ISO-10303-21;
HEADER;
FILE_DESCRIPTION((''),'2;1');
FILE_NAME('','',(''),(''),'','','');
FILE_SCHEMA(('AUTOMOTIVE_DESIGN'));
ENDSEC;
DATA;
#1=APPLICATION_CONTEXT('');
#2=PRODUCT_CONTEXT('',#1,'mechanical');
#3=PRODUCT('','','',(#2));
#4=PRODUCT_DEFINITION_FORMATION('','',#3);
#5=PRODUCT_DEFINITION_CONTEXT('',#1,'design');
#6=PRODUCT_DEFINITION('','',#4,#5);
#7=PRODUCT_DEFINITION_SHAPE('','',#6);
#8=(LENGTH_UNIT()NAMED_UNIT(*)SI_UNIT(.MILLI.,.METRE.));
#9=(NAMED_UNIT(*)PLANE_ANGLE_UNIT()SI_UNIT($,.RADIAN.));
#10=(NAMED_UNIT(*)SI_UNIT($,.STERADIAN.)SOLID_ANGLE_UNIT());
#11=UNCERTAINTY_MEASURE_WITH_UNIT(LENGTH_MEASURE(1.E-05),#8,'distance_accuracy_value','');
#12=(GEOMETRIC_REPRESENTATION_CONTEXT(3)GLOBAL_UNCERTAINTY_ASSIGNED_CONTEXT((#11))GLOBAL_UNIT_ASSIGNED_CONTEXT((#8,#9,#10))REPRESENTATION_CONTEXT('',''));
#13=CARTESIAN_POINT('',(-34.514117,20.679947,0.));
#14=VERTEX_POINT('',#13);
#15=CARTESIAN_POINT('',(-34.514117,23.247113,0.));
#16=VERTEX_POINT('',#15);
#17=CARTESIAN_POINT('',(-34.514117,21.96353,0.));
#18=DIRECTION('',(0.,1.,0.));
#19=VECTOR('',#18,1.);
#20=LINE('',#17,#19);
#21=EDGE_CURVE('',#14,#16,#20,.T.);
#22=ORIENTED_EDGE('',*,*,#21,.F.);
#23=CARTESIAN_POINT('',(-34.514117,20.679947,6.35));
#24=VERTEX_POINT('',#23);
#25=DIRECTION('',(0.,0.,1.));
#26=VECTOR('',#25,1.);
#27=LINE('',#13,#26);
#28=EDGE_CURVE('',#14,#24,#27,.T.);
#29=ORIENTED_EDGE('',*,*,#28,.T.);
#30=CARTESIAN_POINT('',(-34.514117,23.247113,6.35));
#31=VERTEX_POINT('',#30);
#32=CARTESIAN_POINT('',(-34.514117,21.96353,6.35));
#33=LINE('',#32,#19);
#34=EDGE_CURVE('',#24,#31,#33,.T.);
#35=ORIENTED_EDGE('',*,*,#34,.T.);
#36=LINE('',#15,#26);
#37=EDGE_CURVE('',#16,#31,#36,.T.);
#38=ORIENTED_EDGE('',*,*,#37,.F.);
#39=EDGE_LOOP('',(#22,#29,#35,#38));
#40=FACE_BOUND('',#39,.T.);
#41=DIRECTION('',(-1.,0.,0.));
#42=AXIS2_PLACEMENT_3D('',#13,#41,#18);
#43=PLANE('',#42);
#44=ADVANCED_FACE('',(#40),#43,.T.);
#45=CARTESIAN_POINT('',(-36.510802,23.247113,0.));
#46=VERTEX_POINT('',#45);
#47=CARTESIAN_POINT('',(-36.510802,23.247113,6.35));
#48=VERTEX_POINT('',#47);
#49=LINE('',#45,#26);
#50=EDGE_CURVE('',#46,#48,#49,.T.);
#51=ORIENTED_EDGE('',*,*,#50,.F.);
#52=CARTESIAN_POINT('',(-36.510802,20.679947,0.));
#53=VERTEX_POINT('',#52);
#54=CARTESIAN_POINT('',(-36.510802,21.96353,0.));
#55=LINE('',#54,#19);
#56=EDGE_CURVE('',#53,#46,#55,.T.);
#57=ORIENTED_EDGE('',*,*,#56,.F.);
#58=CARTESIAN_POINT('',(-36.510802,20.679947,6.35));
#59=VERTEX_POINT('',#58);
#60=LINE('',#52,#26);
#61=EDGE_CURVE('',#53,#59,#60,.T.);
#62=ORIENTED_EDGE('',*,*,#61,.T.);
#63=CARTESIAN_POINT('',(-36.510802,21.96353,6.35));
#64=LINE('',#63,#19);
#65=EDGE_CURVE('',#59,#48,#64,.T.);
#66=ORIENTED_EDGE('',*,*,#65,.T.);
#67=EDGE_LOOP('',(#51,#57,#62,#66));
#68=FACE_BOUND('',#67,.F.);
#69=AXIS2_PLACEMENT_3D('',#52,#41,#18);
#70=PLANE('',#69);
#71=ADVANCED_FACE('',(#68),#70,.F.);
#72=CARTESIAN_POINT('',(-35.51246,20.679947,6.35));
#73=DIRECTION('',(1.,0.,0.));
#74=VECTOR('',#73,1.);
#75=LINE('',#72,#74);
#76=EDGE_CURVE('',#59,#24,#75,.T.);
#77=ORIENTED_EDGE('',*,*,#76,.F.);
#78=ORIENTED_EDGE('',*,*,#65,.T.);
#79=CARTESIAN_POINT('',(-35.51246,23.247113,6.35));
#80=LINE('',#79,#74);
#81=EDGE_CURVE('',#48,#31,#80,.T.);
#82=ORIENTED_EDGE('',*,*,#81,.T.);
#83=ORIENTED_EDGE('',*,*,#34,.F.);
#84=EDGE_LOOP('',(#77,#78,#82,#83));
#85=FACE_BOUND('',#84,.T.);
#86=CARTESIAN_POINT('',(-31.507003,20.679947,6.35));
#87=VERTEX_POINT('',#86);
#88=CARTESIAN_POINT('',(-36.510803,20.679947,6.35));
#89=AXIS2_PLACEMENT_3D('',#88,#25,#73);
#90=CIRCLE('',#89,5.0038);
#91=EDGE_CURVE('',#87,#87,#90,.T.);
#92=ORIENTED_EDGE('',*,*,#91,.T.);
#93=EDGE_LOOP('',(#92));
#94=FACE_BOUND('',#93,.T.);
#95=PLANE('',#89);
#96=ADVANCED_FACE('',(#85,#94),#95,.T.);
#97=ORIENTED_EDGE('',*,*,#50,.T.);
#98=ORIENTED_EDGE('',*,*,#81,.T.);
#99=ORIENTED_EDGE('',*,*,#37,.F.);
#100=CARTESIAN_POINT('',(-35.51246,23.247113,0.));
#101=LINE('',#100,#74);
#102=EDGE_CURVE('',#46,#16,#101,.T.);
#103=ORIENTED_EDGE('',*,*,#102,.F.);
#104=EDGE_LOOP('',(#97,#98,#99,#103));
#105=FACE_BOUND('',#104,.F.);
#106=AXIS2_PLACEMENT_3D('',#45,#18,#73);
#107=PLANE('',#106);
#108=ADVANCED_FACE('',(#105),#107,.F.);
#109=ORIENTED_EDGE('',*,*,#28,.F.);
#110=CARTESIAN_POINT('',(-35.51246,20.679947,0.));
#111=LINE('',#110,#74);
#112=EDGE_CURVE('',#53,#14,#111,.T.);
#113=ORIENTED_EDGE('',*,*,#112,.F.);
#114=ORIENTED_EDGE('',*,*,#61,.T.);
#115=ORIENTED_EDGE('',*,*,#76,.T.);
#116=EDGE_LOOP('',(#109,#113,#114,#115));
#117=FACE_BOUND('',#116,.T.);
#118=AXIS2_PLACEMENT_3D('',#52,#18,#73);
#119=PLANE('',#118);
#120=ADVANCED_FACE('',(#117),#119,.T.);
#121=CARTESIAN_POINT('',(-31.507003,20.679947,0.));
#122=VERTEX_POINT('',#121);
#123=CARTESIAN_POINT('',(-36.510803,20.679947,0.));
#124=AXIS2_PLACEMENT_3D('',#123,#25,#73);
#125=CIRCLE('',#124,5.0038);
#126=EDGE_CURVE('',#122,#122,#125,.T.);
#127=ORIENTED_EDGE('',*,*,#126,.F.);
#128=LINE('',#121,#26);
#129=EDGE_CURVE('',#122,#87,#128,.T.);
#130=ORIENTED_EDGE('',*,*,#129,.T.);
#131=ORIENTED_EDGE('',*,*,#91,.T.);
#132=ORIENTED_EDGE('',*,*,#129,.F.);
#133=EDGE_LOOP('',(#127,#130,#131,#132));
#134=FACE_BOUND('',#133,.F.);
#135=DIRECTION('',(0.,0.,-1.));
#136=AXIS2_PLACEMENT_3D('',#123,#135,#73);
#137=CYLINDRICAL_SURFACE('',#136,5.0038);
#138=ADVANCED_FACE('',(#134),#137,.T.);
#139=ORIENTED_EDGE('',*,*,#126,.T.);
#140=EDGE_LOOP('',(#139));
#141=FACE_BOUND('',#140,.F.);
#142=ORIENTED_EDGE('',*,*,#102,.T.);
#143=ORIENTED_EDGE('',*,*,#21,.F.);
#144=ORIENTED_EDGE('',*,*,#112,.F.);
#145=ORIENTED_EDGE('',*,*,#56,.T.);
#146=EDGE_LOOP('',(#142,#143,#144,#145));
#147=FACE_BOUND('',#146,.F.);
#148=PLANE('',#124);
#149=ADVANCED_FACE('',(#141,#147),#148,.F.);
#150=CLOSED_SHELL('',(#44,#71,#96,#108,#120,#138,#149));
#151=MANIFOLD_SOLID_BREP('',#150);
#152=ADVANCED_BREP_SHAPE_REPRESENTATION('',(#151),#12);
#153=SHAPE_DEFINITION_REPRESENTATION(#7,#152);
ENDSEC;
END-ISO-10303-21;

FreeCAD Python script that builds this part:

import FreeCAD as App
import Part
import Sketcher

V = App.Vector
Q = App.Units.Quantity


def add_polygon(sketch, points):
    """Adds a closed chain of lines whose ends are joined by coincident constraints."""
    first, n = sketch.GeometryCount, len(points)
    for a, b in zip(points, points[1:] + points[:1]):
        sketch.addGeometry(Part.LineSegment(App.Vector(*a, 0), App.Vector(*b, 0)), False)
    for i in range(n):
        sketch.addConstraint(Sketcher.Constraint("Coincident", first + i, 2, first + (i + 1) % n, 1))

doc = App.newDocument("Part")
params = doc.addObject("Spreadsheet::Sheet", "Params")
for row, (alias, value) in enumerate([
    ("sketch1_diameter", "0.394 in"),
    ("pad1_length", "0.25 in"),
], start=1):
    params.set(f"A{row}", alias)
    params.set(f"B{row}", "=" + value)
    params.setAlias(f"B{row}", alias)

body = doc.addObject("PartDesign::Body", "Body")

# Sketch on XY plane
sketch1 = body.newObject("Sketcher::SketchObject", "Sketch")
sketch1.AttachmentSupport = (doc.getObject("XY_Plane"), [""])
sketch1.MapMode = "FlatFace"
sketch1.addGeometry(Part.Circle(V(-36.510803, 20.679947, 0), V(0, 0, 1), 5.0038), False)  # 0
add_polygon(sketch1, [(-34.514117, 20.679947), (-36.510802, 20.679947), (-36.510802, 23.247113), (-34.514117, 23.247113)])  # lines 1-4
sketch1.addConstraint(Sketcher.Constraint("Horizontal", 1))
sketch1.addConstraint(Sketcher.Constraint("Vertical", 2))
sketch1.addConstraint(Sketcher.Constraint("Horizontal", 3))
sketch1.addConstraint(Sketcher.Constraint("Vertical", 4))
sketch1.addConstraint(Sketcher.Constraint("Coincident", 1, 2, 0, 3))
sketch1.addConstraint(Sketcher.Constraint("Diameter", 0, Q("0.394 in")))
sketch1.addConstraint(Sketcher.Constraint("DistanceX", 1, 2, 1, 1, Q("1.996685 mm")))
sketch1.addConstraint(Sketcher.Constraint("DistanceY", 2, 1, 2, 2, Q("2.567166 mm")))
sketch1.addConstraint(Sketcher.Constraint("DistanceX", 0, 3, -1, 1, Q("36.510803 mm")))
sketch1.addConstraint(Sketcher.Constraint("DistanceY", -1, 1, 0, 3, Q("20.679947 mm")))
sketch1.setExpression("Constraints[9]", "Params.sketch1_diameter")
pad1 = body.newObject("PartDesign::Pad", "Pad")
pad1.Profile = sketch1
pad1.setExpression("Length", "Params.pad1_length")

doc.recompute()
